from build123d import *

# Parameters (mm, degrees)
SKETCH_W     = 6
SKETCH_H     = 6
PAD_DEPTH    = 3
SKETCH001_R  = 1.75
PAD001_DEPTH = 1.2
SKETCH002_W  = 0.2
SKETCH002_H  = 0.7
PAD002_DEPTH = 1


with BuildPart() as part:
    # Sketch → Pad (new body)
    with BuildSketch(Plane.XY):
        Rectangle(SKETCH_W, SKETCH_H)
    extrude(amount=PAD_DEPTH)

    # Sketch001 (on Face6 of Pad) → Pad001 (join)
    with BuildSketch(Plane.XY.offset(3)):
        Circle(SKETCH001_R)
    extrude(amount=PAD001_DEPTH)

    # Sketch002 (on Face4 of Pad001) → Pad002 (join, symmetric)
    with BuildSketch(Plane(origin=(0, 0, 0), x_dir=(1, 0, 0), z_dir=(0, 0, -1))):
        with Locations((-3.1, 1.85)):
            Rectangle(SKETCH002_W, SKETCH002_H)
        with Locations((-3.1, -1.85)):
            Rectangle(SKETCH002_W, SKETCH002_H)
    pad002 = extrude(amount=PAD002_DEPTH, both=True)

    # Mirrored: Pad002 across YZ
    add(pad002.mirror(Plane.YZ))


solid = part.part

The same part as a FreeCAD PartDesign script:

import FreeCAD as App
import Part
import Sketcher


def add_polygon(sketch, points):
    """Adds a closed chain of lines whose ends are joined by coincident constraints."""
    first, n = sketch.GeometryCount, len(points)
    for a, b in zip(points, points[1:] + points[:1]):
        sketch.addGeometry(Part.LineSegment(App.Vector(*a, 0), App.Vector(*b, 0)), False)
    for i in range(n):
        sketch.addConstraint(Sketcher.Constraint("Coincident", first + i, 2, first + (i + 1) % n, 1))

doc = App.newDocument("Part")
params = doc.addObject("Spreadsheet::Sheet", "Params")
for row, (alias, value) in enumerate([
    ("sketch1_width", "6 mm"),
    ("pad1_length", "3 mm"),
    ("sketch2_diameter", "3.5 mm"),
    ("pad2_length", "1.2 mm"),
    ("sketch3_width", "0.2 mm"),
    ("sketch3_height", "0.7 mm"),
    ("pad3_length", "2 mm"),
], start=1):
    params.set(f"A{row}", alias)
    params.set(f"B{row}", "=" + value)
    params.setAlias(f"B{row}", alias)

body = doc.addObject("PartDesign::Body", "Body")

sketch1 = body.newObject("Sketcher::SketchObject", "Sketch")
sketch1.AttachmentSupport = (doc.getObject("XY_Plane"), [""])
sketch1.MapMode = "FlatFace"
add_polygon(sketch1, [(-3, 3), (-3, -3), (3, -3), (3, 3)])
sketch1.addConstraint([
    Sketcher.Constraint("Vertical", 0),
    Sketcher.Constraint("Horizontal", 1),
    Sketcher.Constraint("Vertical", 2),
    Sketcher.Constraint("Horizontal", 3),
    Sketcher.Constraint("Symmetric", 0, 2, 2, 2, -1, 1),
    Sketcher.Constraint("Equal", 3, 0),
    Sketcher.Constraint("DistanceX", 1, 1, 1, 2, 6.0),
])
sketch1.setExpression("Constraints[10]", "Params.sketch1_width")
pad1 = body.newObject("PartDesign::Pad", "Pad")
pad1.Profile = sketch1
pad1.setExpression("Length", "Params.pad1_length")

sketch2 = body.newObject("Sketcher::SketchObject", "Sketch001")
sketch2.AttachmentSupport = (doc.getObject("XY_Plane"), [""])
sketch2.MapMode = "FlatFace"
sketch2.AttachmentOffset = App.Placement(App.Vector(0, 0, 3), App.Rotation())
sketch2.addGeometry(Part.Circle(App.Vector(0, 0, 0), App.Vector(0, 0, 1), 1.8), False)
sketch2.addConstraint([
    Sketcher.Constraint("Coincident", 0, 3, -1, 1),
    Sketcher.Constraint("Diameter", 0, 3.5),
])
sketch2.setExpression("Constraints[1]", "Params.sketch2_diameter")
pad2 = body.newObject("PartDesign::Pad", "Pad001")
pad2.Profile = sketch2
pad2.setExpression("Length", "Params.pad2_length")

sketch3 = body.newObject("Sketcher::SketchObject", "Sketch002")
sketch3.AttachmentSupport = (doc.getObject("XY_Plane"), [""])
sketch3.MapMode = "FlatFace"
add_polygon(sketch3, [(-3.2, -2.2), (-3.2, -1.5), (-3, -1.5), (-3, -2.2)])
add_polygon(sketch3, [(-3.2, 1.5), (-3.2, 2.2), (-3, 2.2), (-3, 1.5)])
sketch3.addConstraint([
    Sketcher.Constraint("Vertical", 0),
    Sketcher.Constraint("Horizontal", 1),
    Sketcher.Constraint("Vertical", 2),
    Sketcher.Constraint("Horizontal", 3),
    Sketcher.Constraint("Vertical", 4),
    Sketcher.Constraint("Horizontal", 5),
    Sketcher.Constraint("Vertical", 6),
    Sketcher.Constraint("Horizontal", 7),
    Sketcher.Constraint("Symmetric", 3, 2, 4, 2, -1),
    Sketcher.Constraint("Symmetric", 1, 2, 6, 2, -1),
    Sketcher.Constraint("DistanceX", 1, 1, 1, 2, 0.2),
    Sketcher.Constraint("DistanceY", 0, 1, 0, 2, 0.7),
    Sketcher.Constraint("DistanceX", 1, 2, -1, 1, 3.0),
    Sketcher.Constraint("DistanceY", 1, 2, 6, 2, 3.0),
])
sketch3.setExpression("Constraints[18]", "Params.sketch3_width")
sketch3.setExpression("Constraints[19]", "Params.sketch3_height")
pad3 = body.newObject("PartDesign::Pad", "Pad002")
pad3.Profile = sketch3
pad3.setExpression("Length", "Params.pad3_length")
pad3.Midplane = True
doc.recompute()

mirrored = body.newObject("PartDesign::Mirrored", "Mirrored")
mirrored.Originals = [pad3]
mirrored.MirrorPlane = (doc.getObject("YZ_Plane"), [""])
body.Tip = mirrored

doc.recompute()
